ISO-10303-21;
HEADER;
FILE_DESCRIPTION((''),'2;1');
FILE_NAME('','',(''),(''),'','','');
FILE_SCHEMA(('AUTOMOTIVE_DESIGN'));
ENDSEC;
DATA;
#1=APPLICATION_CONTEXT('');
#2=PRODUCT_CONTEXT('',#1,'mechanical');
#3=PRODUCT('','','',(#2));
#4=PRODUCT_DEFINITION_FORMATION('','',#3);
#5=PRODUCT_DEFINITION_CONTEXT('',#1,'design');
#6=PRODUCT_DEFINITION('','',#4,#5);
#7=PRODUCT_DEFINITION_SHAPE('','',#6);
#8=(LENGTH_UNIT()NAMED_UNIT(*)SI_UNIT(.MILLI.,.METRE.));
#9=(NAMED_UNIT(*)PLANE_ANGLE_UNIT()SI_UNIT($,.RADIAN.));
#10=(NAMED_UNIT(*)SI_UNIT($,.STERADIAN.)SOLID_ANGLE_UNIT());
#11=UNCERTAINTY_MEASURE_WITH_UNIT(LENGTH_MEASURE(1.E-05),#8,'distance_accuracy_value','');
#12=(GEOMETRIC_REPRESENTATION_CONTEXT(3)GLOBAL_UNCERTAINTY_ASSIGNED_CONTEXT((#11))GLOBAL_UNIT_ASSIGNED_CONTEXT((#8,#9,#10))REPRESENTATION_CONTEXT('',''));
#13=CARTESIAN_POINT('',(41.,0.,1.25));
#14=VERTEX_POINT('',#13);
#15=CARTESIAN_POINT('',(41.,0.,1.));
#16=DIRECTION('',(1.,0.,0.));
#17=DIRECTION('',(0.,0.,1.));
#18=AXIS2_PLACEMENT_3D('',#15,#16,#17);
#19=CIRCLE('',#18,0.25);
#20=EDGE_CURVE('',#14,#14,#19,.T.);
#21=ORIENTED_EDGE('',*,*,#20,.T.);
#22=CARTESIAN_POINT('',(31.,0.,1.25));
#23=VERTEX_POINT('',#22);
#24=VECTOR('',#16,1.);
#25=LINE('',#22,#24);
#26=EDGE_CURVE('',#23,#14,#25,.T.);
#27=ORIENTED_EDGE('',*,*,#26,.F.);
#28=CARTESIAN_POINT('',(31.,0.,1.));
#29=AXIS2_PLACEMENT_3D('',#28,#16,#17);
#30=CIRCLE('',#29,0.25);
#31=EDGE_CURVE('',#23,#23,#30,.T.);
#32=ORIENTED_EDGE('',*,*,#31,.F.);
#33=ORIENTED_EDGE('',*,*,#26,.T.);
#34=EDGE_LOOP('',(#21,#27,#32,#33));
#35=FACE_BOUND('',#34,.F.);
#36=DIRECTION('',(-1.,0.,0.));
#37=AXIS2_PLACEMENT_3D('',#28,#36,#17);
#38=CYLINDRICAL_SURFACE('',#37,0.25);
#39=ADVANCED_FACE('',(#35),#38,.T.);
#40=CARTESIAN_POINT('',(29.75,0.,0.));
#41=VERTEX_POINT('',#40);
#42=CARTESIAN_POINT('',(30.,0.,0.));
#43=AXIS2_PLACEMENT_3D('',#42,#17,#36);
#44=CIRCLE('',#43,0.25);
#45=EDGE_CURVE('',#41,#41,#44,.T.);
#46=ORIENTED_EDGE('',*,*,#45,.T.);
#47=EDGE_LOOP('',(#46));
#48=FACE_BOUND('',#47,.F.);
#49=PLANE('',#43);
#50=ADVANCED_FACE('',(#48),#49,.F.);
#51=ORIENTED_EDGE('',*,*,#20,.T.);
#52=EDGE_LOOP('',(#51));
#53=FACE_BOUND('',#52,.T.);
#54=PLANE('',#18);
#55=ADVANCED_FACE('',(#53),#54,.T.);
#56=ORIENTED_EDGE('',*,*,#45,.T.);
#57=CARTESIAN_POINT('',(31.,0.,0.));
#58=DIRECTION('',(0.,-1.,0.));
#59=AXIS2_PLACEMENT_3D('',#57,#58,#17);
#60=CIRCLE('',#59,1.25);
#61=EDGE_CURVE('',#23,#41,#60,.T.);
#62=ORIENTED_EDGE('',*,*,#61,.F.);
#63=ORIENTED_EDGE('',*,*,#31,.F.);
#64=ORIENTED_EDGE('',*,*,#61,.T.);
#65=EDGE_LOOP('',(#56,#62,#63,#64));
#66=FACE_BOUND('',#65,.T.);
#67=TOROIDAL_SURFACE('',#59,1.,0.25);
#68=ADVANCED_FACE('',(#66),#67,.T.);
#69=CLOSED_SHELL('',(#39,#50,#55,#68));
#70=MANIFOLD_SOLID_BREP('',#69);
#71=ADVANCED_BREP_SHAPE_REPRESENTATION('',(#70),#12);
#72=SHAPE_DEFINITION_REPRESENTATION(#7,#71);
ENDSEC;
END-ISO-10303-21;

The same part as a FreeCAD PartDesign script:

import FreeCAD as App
import Part
import Sketcher
from FreeCAD import Vector

doc = App.newDocument("Part")
body = doc.addObject("PartDesign::Body", "Body")

sketch1 = doc.addObject("Sketcher::SketchObject", "Sketch")
body.addObject(sketch1)
sketch1.AttachmentSupport = (doc.XZ_Plane, [""])
sketch1.MapMode = "FlatFace"
sketch1.addGeometry(Part.Circle(Vector(1, 0, 0), Vector(0, 0, 1), 0.25), False)
sketch1.addConstraint(Sketcher.Constraint("PointOnObject", 0, 3, -1))
sketch1.addConstraint(Sketcher.Constraint("Diameter", 0, 0.5))
sketch1.addConstraint(Sketcher.Constraint("DistanceX", -1, 1, 0, 3, 1.0))
revolution = doc.addObject("PartDesign::Revolution", "Revolution")
body.addObject(revolution)
revolution.Profile = sketch1
revolution.ReferenceAxis = (sketch1, ["V_Axis"])
revolution.Angle = 90
body2 = doc.addObject("PartDesign::Body", "Body001")

sketch2 = doc.addObject("Sketcher::SketchObject", "Sketch001")
body2.addObject(sketch2)
sketch2.AttachmentSupport = (doc.getObject("XZ_Plane001"), [""])
sketch2.MapMode = "FlatFace"
sketch2.addGeometry(Part.Circle(Vector(1, 0, 0), Vector(0, 0, 1), 0.25), False)
sketch2.addConstraint(Sketcher.Constraint("PointOnObject", 0, 3, -1))
sketch2.addConstraint(Sketcher.Constraint("Diameter", 0, 0.5))
sketch2.addConstraint(Sketcher.Constraint("DistanceX", -1, 1, 0, 3, 1.0))
pad1 = doc.addObject("PartDesign::Pad", "Pad")
body2.addObject(pad1)
pad1.Profile = sketch2
pad1.Length = 10
doc.recompute()

boolean = doc.addObject("PartDesign::Boolean", "Boolean")
body2.addObject(boolean)
boolean.Type = "Fuse"
boolean.addObjects([body])
body3 = doc.addObject("PartDesign::Body", "Body002")
doc.recompute()

body2.Placement = App.Placement(Vector(0, 0, 0), App.Rotation(Vector(0, 1, 0), 270))
boolean2 = doc.addObject("PartDesign::Boolean", "Boolean001")
body3.addObject(boolean2)
boolean2.Type = "Fuse"
boolean2.addObjects([body2])
body4 = doc.addObject("PartDesign::Body", "Body003")
doc.recompute()

body3.Placement = App.Placement(Vector(31, 0, 0), App.Rotation(Vector(0, 0, 1), 90))
boolean3 = doc.addObject("PartDesign::Boolean", "Boolean002")
body4.addObject(boolean3)
boolean3.Type = "Fuse"
boolean3.addObjects([body3])

doc.recompute()
